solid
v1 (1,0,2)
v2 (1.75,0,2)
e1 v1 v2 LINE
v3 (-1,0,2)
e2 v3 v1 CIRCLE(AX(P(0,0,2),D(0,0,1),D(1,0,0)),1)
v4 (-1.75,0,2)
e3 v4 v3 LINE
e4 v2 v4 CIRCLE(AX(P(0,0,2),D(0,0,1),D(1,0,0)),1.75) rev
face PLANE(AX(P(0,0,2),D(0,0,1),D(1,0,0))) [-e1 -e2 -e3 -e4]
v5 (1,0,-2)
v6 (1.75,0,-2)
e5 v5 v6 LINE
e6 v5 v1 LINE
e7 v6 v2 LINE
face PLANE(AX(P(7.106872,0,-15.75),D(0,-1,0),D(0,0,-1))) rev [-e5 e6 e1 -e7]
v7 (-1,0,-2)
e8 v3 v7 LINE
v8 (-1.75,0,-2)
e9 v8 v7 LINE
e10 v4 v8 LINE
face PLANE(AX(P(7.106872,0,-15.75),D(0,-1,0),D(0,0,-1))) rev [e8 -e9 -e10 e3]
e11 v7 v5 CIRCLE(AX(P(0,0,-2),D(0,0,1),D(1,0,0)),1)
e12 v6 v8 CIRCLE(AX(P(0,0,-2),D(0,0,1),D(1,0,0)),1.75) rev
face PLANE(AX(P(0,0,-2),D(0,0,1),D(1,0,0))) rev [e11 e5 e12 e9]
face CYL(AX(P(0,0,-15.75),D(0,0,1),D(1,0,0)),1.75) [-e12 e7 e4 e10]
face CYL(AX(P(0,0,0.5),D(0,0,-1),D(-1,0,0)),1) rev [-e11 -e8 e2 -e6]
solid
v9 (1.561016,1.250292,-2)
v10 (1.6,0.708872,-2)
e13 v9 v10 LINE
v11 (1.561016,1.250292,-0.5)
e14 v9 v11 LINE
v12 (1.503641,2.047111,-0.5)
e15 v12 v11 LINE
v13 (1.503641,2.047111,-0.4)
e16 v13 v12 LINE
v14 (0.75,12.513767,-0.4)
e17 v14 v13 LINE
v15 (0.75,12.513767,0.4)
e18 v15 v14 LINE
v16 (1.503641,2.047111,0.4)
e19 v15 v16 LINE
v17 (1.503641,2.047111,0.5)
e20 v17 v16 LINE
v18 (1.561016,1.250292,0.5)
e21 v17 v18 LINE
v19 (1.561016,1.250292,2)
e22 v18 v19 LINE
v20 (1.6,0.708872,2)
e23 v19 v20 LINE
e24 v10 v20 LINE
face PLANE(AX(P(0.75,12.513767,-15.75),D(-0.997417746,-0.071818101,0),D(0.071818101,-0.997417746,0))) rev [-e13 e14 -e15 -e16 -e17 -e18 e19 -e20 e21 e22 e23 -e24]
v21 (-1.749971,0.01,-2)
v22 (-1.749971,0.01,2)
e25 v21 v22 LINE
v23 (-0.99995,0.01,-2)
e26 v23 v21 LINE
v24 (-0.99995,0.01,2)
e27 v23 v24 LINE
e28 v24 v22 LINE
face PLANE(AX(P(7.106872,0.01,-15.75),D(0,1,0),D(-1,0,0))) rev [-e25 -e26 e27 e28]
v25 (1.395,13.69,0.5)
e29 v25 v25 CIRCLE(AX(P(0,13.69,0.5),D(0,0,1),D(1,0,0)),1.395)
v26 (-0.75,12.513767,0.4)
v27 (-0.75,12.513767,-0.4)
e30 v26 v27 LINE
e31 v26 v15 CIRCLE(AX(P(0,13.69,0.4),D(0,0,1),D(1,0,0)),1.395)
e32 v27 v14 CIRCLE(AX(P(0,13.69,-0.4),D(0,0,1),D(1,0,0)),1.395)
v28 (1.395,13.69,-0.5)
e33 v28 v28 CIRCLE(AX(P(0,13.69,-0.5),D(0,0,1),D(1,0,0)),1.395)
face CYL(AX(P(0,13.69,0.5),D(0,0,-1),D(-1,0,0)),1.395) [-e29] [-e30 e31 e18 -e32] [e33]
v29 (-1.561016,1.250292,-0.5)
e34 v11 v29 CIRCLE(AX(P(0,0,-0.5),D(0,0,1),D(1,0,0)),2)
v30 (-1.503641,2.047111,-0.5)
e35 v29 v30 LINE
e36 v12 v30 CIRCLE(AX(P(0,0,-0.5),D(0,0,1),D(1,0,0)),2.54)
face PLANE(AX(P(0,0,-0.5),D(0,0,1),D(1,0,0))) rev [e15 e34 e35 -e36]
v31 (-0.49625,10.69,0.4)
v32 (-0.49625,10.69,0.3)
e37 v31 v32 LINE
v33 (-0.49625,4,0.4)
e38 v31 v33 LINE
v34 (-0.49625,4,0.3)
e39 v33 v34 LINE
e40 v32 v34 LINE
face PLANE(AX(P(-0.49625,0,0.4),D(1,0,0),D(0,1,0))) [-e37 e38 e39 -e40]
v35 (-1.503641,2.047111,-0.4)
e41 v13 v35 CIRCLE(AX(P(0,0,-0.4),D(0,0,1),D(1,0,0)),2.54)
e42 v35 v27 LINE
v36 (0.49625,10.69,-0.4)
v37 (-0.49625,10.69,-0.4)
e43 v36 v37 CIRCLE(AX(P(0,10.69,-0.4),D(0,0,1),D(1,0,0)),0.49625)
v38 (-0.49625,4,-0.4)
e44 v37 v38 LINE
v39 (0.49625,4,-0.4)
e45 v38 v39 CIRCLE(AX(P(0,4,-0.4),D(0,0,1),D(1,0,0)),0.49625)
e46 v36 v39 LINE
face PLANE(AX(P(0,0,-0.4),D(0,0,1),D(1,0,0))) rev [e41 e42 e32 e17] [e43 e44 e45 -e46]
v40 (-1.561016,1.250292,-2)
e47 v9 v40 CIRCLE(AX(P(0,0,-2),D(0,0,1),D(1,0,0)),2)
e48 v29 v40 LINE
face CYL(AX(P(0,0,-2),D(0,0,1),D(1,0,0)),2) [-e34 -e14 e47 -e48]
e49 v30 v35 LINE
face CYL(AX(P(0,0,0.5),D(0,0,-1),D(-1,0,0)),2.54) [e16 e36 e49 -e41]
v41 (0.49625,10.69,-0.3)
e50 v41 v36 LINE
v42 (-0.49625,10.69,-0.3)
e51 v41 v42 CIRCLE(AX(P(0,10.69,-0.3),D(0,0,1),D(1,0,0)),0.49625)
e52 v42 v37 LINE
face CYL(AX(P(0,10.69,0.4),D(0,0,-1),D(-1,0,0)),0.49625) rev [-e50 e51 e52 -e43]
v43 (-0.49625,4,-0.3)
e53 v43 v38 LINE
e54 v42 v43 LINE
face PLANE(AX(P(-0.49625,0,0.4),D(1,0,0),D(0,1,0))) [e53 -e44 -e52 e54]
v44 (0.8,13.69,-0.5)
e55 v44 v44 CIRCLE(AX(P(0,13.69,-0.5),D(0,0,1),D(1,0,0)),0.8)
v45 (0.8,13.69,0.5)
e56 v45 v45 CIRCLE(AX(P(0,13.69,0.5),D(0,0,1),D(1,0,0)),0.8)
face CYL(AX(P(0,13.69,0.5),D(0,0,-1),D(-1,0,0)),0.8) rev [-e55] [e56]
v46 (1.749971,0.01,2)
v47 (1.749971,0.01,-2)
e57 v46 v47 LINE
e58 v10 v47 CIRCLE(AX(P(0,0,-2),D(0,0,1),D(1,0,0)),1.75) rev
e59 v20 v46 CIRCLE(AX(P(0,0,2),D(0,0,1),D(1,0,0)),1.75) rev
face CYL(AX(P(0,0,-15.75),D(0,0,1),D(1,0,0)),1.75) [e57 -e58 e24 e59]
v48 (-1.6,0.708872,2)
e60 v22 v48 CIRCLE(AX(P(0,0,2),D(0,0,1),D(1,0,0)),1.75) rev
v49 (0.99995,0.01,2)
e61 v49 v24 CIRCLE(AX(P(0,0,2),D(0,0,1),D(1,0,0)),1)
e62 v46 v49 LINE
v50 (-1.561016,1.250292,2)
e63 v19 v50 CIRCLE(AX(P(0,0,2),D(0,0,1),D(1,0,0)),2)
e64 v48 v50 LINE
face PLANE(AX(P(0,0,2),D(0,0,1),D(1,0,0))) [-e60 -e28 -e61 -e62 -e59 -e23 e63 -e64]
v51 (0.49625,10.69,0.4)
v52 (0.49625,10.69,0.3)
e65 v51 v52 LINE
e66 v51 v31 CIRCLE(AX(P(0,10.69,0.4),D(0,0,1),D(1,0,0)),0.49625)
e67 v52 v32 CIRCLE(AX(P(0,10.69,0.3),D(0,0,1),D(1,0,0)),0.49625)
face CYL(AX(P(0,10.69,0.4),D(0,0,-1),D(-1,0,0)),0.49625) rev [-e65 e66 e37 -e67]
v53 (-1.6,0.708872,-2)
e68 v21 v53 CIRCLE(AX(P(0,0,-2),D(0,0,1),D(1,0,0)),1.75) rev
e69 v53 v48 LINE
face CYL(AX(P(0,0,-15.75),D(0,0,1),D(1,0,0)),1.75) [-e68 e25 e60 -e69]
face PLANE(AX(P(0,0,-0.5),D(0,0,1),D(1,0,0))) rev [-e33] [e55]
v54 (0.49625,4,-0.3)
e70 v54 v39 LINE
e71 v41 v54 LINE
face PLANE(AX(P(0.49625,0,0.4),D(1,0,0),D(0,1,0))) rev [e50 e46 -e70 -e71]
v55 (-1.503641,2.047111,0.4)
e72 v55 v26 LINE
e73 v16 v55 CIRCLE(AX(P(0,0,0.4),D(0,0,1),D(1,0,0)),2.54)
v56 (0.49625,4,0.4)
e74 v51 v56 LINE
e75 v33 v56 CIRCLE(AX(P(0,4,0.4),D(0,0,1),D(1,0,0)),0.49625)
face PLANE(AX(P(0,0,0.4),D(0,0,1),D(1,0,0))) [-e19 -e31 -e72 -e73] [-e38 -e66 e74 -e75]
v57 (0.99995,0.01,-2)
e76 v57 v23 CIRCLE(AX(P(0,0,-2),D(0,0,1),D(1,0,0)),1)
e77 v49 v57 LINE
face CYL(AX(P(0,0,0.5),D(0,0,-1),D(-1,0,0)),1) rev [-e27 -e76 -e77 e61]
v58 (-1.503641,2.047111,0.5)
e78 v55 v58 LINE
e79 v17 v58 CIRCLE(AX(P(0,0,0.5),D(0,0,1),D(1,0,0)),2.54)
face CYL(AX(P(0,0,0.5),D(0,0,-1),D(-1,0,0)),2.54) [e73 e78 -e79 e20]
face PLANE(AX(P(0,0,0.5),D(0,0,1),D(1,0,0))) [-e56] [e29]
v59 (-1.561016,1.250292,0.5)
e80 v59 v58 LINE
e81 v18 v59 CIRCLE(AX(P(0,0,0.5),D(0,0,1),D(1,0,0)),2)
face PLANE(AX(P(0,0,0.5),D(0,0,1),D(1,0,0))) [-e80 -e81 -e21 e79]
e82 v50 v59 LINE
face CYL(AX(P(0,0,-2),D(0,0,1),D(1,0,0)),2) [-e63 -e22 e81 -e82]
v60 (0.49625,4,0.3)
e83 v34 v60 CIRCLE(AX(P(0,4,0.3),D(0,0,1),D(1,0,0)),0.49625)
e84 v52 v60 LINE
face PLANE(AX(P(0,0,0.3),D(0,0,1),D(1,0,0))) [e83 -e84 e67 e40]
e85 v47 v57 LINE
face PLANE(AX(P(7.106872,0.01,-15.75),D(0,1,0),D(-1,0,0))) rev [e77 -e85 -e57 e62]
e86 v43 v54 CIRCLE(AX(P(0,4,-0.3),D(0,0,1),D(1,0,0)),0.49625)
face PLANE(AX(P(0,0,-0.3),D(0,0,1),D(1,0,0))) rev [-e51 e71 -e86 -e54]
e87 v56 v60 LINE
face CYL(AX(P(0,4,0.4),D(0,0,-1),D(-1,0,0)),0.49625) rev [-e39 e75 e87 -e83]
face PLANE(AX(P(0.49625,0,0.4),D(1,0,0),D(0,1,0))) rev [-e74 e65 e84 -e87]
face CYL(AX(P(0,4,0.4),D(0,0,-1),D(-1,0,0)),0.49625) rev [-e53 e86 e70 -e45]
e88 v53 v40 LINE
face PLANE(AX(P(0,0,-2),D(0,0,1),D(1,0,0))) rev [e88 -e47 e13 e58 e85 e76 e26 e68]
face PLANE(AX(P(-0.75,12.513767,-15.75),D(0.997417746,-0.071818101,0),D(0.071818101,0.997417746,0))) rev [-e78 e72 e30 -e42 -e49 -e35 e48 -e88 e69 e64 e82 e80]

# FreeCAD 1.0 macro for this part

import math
import FreeCAD as App
import Part
import Sketcher


def add_polygon(sketch, points):
    """Adds a closed chain of lines whose ends are joined by coincident constraints."""
    first, n = sketch.GeometryCount, len(points)
    for a, b in zip(points, points[1:] + points[:1]):
        sketch.addGeometry(Part.LineSegment(App.Vector(*a, 0), App.Vector(*b, 0)), False)
    for i in range(n):
        sketch.addConstraint(Sketcher.Constraint("Coincident", first + i, 2, first + (i + 1) % n, 1))

doc = App.newDocument("Part")
body = doc.addObject("PartDesign::Body", "Body")

sketch1 = doc.addObject("Sketcher::SketchObject", "Sketch")
body.addObject(sketch1)
sketch1.AttachmentSupport = (doc.XY_Plane, [""])
sketch1.MapMode = "FlatFace"
sketch1.addGeometry([
    Part.Circle(App.Vector(0, 13.69, 0), App.Vector(0, 0, 1), 1.395),
    Part.Circle(App.Vector(0, 13.69, 0), App.Vector(0, 0, 1), 0.8),
], False)
sketch1.addConstraint([
    Sketcher.Constraint("Coincident", 1, 3, 0, 3),
    Sketcher.Constraint("PointOnObject", 0, 3, -2),
    Sketcher.Constraint("Diameter", 1, 1.6),
    Sketcher.Constraint("Diameter", 0, 2.79),
    Sketcher.Constraint("DistanceY", -1, 1, 0, 3, 13.69),
])
pad1 = doc.addObject("PartDesign::Pad", "Pad")
body.addObject(pad1)
pad1.Profile = sketch1
pad1.Length = 1
pad1.Midplane = True
body2 = doc.addObject("PartDesign::Body", "Body001")

sketch2 = doc.addObject("Sketcher::SketchObject", "Sketch001")
body2.addObject(sketch2)
sketch2.AttachmentSupport = (doc.getObject("XY_Plane001"), [""])
sketch2.MapMode = "FlatFace"
sketch2.addGeometry([
    Part.Circle(App.Vector(0, 0, 0), App.Vector(0, 0, 1), 2.54),
    Part.Circle(App.Vector(0, 0, 0), App.Vector(0, 0, 1), 1),
], False)
sketch2.addConstraint([
    Sketcher.Constraint("Coincident", 0, 3, -1, 1),
    Sketcher.Constraint("Coincident", 1, 3, -1, 1),
    Sketcher.Constraint("Diameter", 1, 2.0),
    Sketcher.Constraint("Diameter", 0, 5.08),
])
pad2 = doc.addObject("PartDesign::Pad", "Pad001")
body2.addObject(pad2)
pad2.Profile = sketch2
pad2.Length = 1
pad2.Midplane = True
body.AllowCompound = True
doc.recompute()

boolean = doc.addObject("PartDesign::Boolean", "Boolean")
body.addObject(boolean)
boolean.Type = "Fuse"
boolean.addObjects([body2])

sketch3 = doc.addObject("Sketcher::SketchObject", "Sketch002")
body.addObject(sketch3)
sketch3.AttachmentSupport = (doc.XY_Plane, [""])
sketch3.MapMode = "FlatFace"
sketch3.addGeometry([
    Part.ArcOfCircle(Part.Circle(App.Vector(0, 13.69, 0), App.Vector(0, 0, 1), 1.395), math.radians(-122.522748), math.radians(-57.477252)),
    Part.LineSegment(App.Vector(-0.75, 12.513767, 0), App.Vector(-1.65, 1.931088, 0)),
    Part.ArcOfCircle(Part.Circle(App.Vector(0, 0, 0), App.Vector(0, 0, 1), 2.54), math.radians(49.488075), math.radians(130.511925)),
    Part.LineSegment(App.Vector(1.65, 1.931088, 0), App.Vector(0.75, 12.513767, 0)),
    Part.LineSegment(App.Vector(-0.49625, 4, 0), App.Vector(-0.49625, 10.69, 0)),
    Part.ArcOfCircle(Part.Circle(App.Vector(0, 10.69, 0), App.Vector(0, 0, 1), 0.49625), math.radians(0), math.radians(180)),
    Part.LineSegment(App.Vector(0.49625, 10.69, 0), App.Vector(0.49625, 4, 0)),
    Part.ArcOfCircle(Part.Circle(App.Vector(0, 4, 0), App.Vector(0, 0, 1), 0.49625), math.radians(180), math.radians(360)),
], False)
sketch3.addConstraint([
    Sketcher.Constraint("Coincident", 0, 1, 1, 1),
    Sketcher.Constraint("Coincident", 1, 2, 2, 2),
    Sketcher.Constraint("Coincident", 2, 1, 3, 1),
    Sketcher.Constraint("Coincident", 3, 2, 0, 2),
    Sketcher.Constraint("Tangent", 4, 2, 5, 2),
    Sketcher.Constraint("Tangent", 5, 1, 6, 1),
    Sketcher.Constraint("Tangent", 6, 2, 7, 2),
    Sketcher.Constraint("Tangent", 7, 1, 4, 1),
    Sketcher.Constraint("Vertical", 4),
    Sketcher.Constraint("Vertical", 6),
    Sketcher.Constraint("Coincident", 2, 3, -1, 1),
    Sketcher.Constraint("Symmetric", 0, 1, 3, 2, -2),
    Sketcher.Constraint("PointOnObject", 5, 3, -2),
    Sketcher.Constraint("Horizontal", 1, 2, 2, 1),
    Sketcher.Constraint("Radius", 2, 2.54),
    Sketcher.Constraint("DistanceY", -1, 1, 7, 3, 4.0),
    Sketcher.Constraint("Radius", 0, 1.395),
    Sketcher.Constraint("DistanceY", 5, 3, 0, 3, 3.0),
    Sketcher.Constraint("DistanceY", 4, 1, 4, 2, 6.69),
    Sketcher.Constraint("DistanceX", 1, 2, 0, 1, 0.9),
    Sketcher.Constraint("DistanceX", 1, 2, 2, 1, 3.3),
    Sketcher.Constraint("Radius", 5, 0.49625),
])
pad3 = doc.addObject("PartDesign::Pad", "Pad002")
body.addObject(pad3)
pad3.Profile = sketch3
pad3.Length = 0.8
pad3.Midplane = True

sketch4 = doc.addObject("Sketcher::SketchObject", "Sketch003")
body.addObject(sketch4)
sketch4.AttachmentSupport = (doc.XY_Plane, [""])
sketch4.MapMode = "FlatFace"
sketch4.addGeometry([
    Part.LineSegment(App.Vector(-0.49625, 10.69, 0), App.Vector(-0.49625, 4, 0)),
    Part.ArcOfCircle(Part.Circle(App.Vector(0, 4, 0), App.Vector(0, 0, 1), 0.49625), math.radians(180), math.radians(360)),
    Part.LineSegment(App.Vector(0.49625, 4, 0), App.Vector(0.49625, 10.69, 0)),
    Part.ArcOfCircle(Part.Circle(App.Vector(0, 10.69, 0), App.Vector(0, 0, 1), 0.49625), math.radians(0), math.radians(180)),
], False)
sketch4.addConstraint([
    Sketcher.Constraint("Tangent", 0, 2, 1, 1),
    Sketcher.Constraint("Tangent", 1, 2, 2, 1),
    Sketcher.Constraint("Tangent", 2, 2, 3, 1),
    Sketcher.Constraint("Tangent", 3, 2, 0, 1),
    Sketcher.Constraint("Vertical", 0),
    Sketcher.Constraint("Vertical", 2),
    Sketcher.Constraint("PointOnObject", 1, 3, -2),
    Sketcher.Constraint("DistanceY", -1, 1, 1, 3, 4.0),
    Sketcher.Constraint("DistanceY", 0, 2, 0, 1, 6.69),
    Sketcher.Constraint("Radius", 1, 0.49625),
])
pad4 = doc.addObject("PartDesign::Pad", "Pad003")
body.addObject(pad4)
pad4.Profile = sketch4
pad4.Length = 0.6
pad4.Midplane = True

sketch5 = doc.addObject("Sketcher::SketchObject", "Sketch004")
body.addObject(sketch5)
sketch5.AttachmentSupport = (doc.XY_Plane, [""])
sketch5.MapMode = "FlatFace"
sketch5.AttachmentOffset = App.Placement(App.Vector(0, 0, 0.5), App.Rotation())
sketch5.addGeometry([
    Part.Circle(App.Vector(0, 0, 0), App.Vector(0, 0, 1), 2),
    Part.Circle(App.Vector(0, 0, 0), App.Vector(0, 0, 1), 1),
], False)
sketch5.addConstraint([
    Sketcher.Constraint("Coincident", 0, 3, -1, 1),
    Sketcher.Constraint("Coincident", 1, 3, -1, 1),
    Sketcher.Constraint("Diameter", 0, 4.0),
    Sketcher.Constraint("Diameter", 1, 2.0),
])
pad5 = doc.addObject("PartDesign::Pad", "Pad004")
body.addObject(pad5)
pad5.Profile = sketch5
pad5.Type = "TwoLengths"
pad5.Length = 1.5
pad5.Length2 = 2.5

sketch6 = doc.addObject("Sketcher::SketchObject", "Sketch005")
body.addObject(sketch6)
sketch6.AttachmentSupport = (doc.XY_Plane, [""])
sketch6.MapMode = "FlatFace"
sketch6.addGeometry([
    Part.LineSegment(App.Vector(-0.75, 12.513767, 0), App.Vector(-2.441498, 2.507805, 0)),
    Part.ArcOfCircle(Part.Circle(App.Vector(0, 0, 0), App.Vector(0, 0, 1), 3.5), math.radians(134.232435), math.radians(405.767565)),
    Part.LineSegment(App.Vector(2.441498, 2.507805, 0), App.Vector(0.75, 12.513767, 0)),
    Part.LineSegment(App.Vector(0.75, 12.513767, 0), App.Vector(1.6, 0.708872, 0)),
    Part.ArcOfCircle(Part.Circle(App.Vector(0, 0, 0), App.Vector(0, 0, 1), 1.75), math.radians(156.104492), math.radians(383.895508)),
    Part.LineSegment(App.Vector(-1.6, 0.708872, 0), App.Vector(-0.75, 12.513767, 0)),
], False)
sketch6.addConstraint([
    Sketcher.Constraint("Coincident", 0, 2, 1, 1),
    Sketcher.Constraint("Coincident", 1, 2, 2, 1),
    Sketcher.Constraint("Coincident", 2, 2, 3, 1),
    Sketcher.Constraint("Coincident", 3, 2, 4, 2),
    Sketcher.Constraint("Coincident", 4, 1, 5, 1),
    Sketcher.Constraint("Coincident", 5, 2, 0, 1),
    Sketcher.Constraint("Coincident", 1, 3, -1, 1),
    Sketcher.Constraint("Coincident", 4, 3, -1, 1),
    Sketcher.Constraint("Symmetric", 2, 2, 5, 2, -2),
    Sketcher.Constraint("Horizontal", 0, 2, 1, 2),
    Sketcher.Constraint("Horizontal", 3, 2, 4, 1),
    Sketcher.Constraint("Radius", 1, 3.5),
    Sketcher.Constraint("Radius", 4, 1.75),
    Sketcher.Constraint("DistanceX", -1, 1, 3, 2, 1.6),
    Sketcher.Constraint("DistanceX", 5, 2, 2, 2, 1.5),
    Sketcher.Constraint("DistanceY", 1, 2, 2, 2, 10.005961),
    Sketcher.Constraint("Distance", 0, 10.147927),
])
pocket1 = doc.addObject("PartDesign::Pocket", "Pocket")
body.addObject(pocket1)
pocket1.Profile = sketch6
pocket1.Length = 31.5
pocket1.Midplane = True

sketch7 = doc.addObject("Sketcher::SketchObject", "Sketch006")
body.addObject(sketch7)
sketch7.AttachmentSupport = (doc.XY_Plane, [""])
sketch7.MapMode = "FlatFace"
add_polygon(sketch7, [(-4.82595, 0.01), (-4.82595, 0), (7.106872, 0), (7.106872, 0.01)])
sketch7.addConstraint([
    Sketcher.Constraint("Vertical", 0),
    Sketcher.Constraint("Horizontal", 1),
    Sketcher.Constraint("Vertical", 2),
    Sketcher.Constraint("Horizontal", 3),
    Sketcher.Constraint("PointOnObject", 0, 2, -1),
    Sketcher.Constraint("DistanceY", 0, 2, 0, 1, 0.01),
    Sketcher.Constraint("DistanceX", 1, 1, 1, 2, 11.932823),
    Sketcher.Constraint("DistanceX", 0, 2, -1, 1, 4.82595),
])
pocket2 = doc.addObject("PartDesign::Pocket", "Pocket001")
body.addObject(pocket2)
pocket2.Profile = sketch7
pocket2.Length = 31.5
pocket2.Midplane = True

doc.recompute()
